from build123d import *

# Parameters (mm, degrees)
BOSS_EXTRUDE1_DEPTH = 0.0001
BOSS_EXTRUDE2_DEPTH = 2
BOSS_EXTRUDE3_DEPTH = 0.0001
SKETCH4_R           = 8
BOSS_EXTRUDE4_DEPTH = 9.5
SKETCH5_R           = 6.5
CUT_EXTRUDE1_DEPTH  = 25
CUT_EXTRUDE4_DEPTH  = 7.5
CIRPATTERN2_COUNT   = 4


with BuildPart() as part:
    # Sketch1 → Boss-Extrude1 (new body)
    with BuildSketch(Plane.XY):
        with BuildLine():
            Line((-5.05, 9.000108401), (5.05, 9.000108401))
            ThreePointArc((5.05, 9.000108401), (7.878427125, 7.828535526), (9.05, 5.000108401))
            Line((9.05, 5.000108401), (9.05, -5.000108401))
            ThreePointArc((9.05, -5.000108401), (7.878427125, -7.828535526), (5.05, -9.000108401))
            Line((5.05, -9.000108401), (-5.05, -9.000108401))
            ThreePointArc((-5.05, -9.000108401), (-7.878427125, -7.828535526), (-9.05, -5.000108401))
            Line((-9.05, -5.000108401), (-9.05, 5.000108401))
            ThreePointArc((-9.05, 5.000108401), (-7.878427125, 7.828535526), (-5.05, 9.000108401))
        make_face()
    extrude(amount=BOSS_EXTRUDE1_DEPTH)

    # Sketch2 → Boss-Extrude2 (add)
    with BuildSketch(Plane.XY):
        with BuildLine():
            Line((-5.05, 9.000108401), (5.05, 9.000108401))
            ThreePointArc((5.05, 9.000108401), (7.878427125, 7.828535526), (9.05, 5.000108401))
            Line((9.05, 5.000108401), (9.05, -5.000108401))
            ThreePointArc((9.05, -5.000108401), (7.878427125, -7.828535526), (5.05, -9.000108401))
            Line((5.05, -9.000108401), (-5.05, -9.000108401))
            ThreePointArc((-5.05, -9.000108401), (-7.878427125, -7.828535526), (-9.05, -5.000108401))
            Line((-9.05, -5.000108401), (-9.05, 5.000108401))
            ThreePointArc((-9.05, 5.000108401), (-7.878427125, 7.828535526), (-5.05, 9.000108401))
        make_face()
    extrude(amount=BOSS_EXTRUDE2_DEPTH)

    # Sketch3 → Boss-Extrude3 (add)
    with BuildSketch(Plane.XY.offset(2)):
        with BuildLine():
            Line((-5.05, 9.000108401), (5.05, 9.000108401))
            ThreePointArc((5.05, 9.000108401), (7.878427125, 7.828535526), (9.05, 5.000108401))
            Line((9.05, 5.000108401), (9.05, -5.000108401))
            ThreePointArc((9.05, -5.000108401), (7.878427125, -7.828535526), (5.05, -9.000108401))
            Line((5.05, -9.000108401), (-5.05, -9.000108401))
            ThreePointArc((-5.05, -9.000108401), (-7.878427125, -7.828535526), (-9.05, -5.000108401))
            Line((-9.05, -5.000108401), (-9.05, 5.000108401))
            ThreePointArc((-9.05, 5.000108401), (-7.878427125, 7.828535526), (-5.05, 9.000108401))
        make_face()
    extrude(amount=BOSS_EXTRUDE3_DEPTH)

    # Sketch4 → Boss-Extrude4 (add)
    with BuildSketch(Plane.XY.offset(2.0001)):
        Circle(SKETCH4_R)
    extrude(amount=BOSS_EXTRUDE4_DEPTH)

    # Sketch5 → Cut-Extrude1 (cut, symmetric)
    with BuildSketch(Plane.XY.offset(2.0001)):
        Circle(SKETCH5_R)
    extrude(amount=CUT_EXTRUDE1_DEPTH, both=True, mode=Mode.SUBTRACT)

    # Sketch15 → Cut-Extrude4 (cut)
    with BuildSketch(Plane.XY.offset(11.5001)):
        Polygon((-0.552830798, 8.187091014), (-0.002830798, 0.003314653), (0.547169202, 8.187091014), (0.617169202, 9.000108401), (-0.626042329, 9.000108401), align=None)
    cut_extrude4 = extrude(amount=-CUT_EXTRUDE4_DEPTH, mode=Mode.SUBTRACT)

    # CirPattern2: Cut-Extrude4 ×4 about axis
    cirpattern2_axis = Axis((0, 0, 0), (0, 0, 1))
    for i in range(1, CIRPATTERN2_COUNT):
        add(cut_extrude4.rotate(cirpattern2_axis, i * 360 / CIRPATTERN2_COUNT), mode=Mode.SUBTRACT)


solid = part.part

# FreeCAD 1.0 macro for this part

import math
import FreeCAD as App
import Part
import Sketcher

V = App.Vector


def add_polygon(sketch, points):
    """Adds a closed chain of lines whose ends are joined by coincident constraints."""
    first, n = sketch.GeometryCount, len(points)
    for a, b in zip(points, points[1:] + points[:1]):
        sketch.addGeometry(Part.LineSegment(App.Vector(*a, 0), App.Vector(*b, 0)), False)
    for i in range(n):
        sketch.addConstraint(Sketcher.Constraint("Coincident", first + i, 2, first + (i + 1) % n, 1))

doc = App.newDocument("Part")
body = doc.addObject("PartDesign::Body", "Body")

# Sketch on XY plane
sketch1 = body.newObject("Sketcher::SketchObject", "Sketch")
sketch1.AttachmentSupport = (doc.getObject("XY_Plane"), [""])
sketch1.MapMode = "FlatFace"
sketch1.addGeometry(Part.LineSegment(V(5, 9, 0), V(-5, 9, 0)), False)
sketch1.addGeometry(Part.ArcOfCircle(Part.Circle(V(-5.1, 5, 0), V(0, 0, 1), 4), math.radians(90), math.radians(180)), False)
sketch1.addGeometry(Part.LineSegment(V(-9.1, 5, 0), V(-9.1, -5, 0)), False)
sketch1.addGeometry(Part.ArcOfCircle(Part.Circle(V(-5.1, -5, 0), V(0, 0, 1), 4), math.radians(180), math.radians(270)), False)
sketch1.addGeometry(Part.LineSegment(V(-5, -9, 0), V(5, -9, 0)), False)
sketch1.addGeometry(Part.ArcOfCircle(Part.Circle(V(5.1, -5, 0), V(0, 0, 1), 4), math.radians(-90), math.radians(0)), False)
sketch1.addGeometry(Part.LineSegment(V(9.1, -5, 0), V(9.1, 5, 0)), False)
sketch1.addGeometry(Part.ArcOfCircle(Part.Circle(V(5.1, 5, 0), V(0, 0, 1), 4), math.radians(0), math.radians(90)), False)
sketch1.addConstraint(Sketcher.Constraint("Tangent", 0, 2, 1, 1))
sketch1.addConstraint(Sketcher.Constraint("Tangent", 1, 2, 2, 1))
sketch1.addConstraint(Sketcher.Constraint("Tangent", 2, 2, 3, 1))
sketch1.addConstraint(Sketcher.Constraint("Tangent", 3, 2, 4, 1))
sketch1.addConstraint(Sketcher.Constraint("Tangent", 4, 2, 5, 1))
sketch1.addConstraint(Sketcher.Constraint("Tangent", 5, 2, 6, 1))
sketch1.addConstraint(Sketcher.Constraint("Tangent", 6, 2, 7, 1))
sketch1.addConstraint(Sketcher.Constraint("Tangent", 7, 2, 0, 1))
sketch1.addConstraint(Sketcher.Constraint("Horizontal", 0))
sketch1.addConstraint(Sketcher.Constraint("Vertical", 2))
sketch1.addConstraint(Sketcher.Constraint("Horizontal", 4))
sketch1.addConstraint(Sketcher.Constraint("Vertical", 6))
sketch1.addConstraint(Sketcher.Constraint("Equal", 1, 3))
sketch1.addConstraint(Sketcher.Constraint("Equal", 3, 5))
sketch1.addConstraint(Sketcher.Constraint("Equal", 5, 7))
sketch1.addConstraint(Sketcher.Constraint("Symmetric", 1, 3, 5, 3, -1, 1))
sketch1.addConstraint(Sketcher.Constraint("Radius", 1, 4.0))
sketch1.addConstraint(Sketcher.Constraint("DistanceX", 0, 2, 0, 1, 10.1))
sketch1.addConstraint(Sketcher.Constraint("DistanceY", 2, 2, 2, 1, 10.000217))
pad1 = body.newObject("PartDesign::Pad", "Pad")
pad1.Profile = sketch1
pad1.Length = 0.0001

# Sketch on XY plane
sketch2 = body.newObject("Sketcher::SketchObject", "Sketch001")
sketch2.AttachmentSupport = (doc.getObject("XY_Plane"), [""])
sketch2.MapMode = "FlatFace"
sketch2.addGeometry(Part.LineSegment(V(5, 9, 0), V(-5, 9, 0)), False)
sketch2.addGeometry(Part.ArcOfCircle(Part.Circle(V(-5.1, 5, 0), V(0, 0, 1), 4), math.radians(90), math.radians(180)), False)
sketch2.addGeometry(Part.LineSegment(V(-9.1, 5, 0), V(-9.1, -5, 0)), False)
sketch2.addGeometry(Part.ArcOfCircle(Part.Circle(V(-5.1, -5, 0), V(0, 0, 1), 4), math.radians(180), math.radians(270)), False)
sketch2.addGeometry(Part.LineSegment(V(-5, -9, 0), V(5, -9, 0)), False)
sketch2.addGeometry(Part.ArcOfCircle(Part.Circle(V(5.1, -5, 0), V(0, 0, 1), 4), math.radians(-90), math.radians(0)), False)
sketch2.addGeometry(Part.LineSegment(V(9.1, -5, 0), V(9.1, 5, 0)), False)
sketch2.addGeometry(Part.ArcOfCircle(Part.Circle(V(5.1, 5, 0), V(0, 0, 1), 4), math.radians(0), math.radians(90)), False)
sketch2.addConstraint(Sketcher.Constraint("Tangent", 0, 2, 1, 1))
sketch2.addConstraint(Sketcher.Constraint("Tangent", 1, 2, 2, 1))
sketch2.addConstraint(Sketcher.Constraint("Tangent", 2, 2, 3, 1))
sketch2.addConstraint(Sketcher.Constraint("Tangent", 3, 2, 4, 1))
sketch2.addConstraint(Sketcher.Constraint("Tangent", 4, 2, 5, 1))
sketch2.addConstraint(Sketcher.Constraint("Tangent", 5, 2, 6, 1))
sketch2.addConstraint(Sketcher.Constraint("Tangent", 6, 2, 7, 1))
sketch2.addConstraint(Sketcher.Constraint("Tangent", 7, 2, 0, 1))
sketch2.addConstraint(Sketcher.Constraint("Horizontal", 0))
sketch2.addConstraint(Sketcher.Constraint("Vertical", 2))
sketch2.addConstraint(Sketcher.Constraint("Horizontal", 4))
sketch2.addConstraint(Sketcher.Constraint("Vertical", 6))
sketch2.addConstraint(Sketcher.Constraint("Equal", 1, 3))
sketch2.addConstraint(Sketcher.Constraint("Equal", 3, 5))
sketch2.addConstraint(Sketcher.Constraint("Equal", 5, 7))
sketch2.addConstraint(Sketcher.Constraint("Symmetric", 1, 3, 5, 3, -1, 1))
sketch2.addConstraint(Sketcher.Constraint("Radius", 1, 4.0))
sketch2.addConstraint(Sketcher.Constraint("DistanceX", 0, 2, 0, 1, 10.1))
sketch2.addConstraint(Sketcher.Constraint("DistanceY", 2, 2, 2, 1, 10.000217))
pad2 = body.newObject("PartDesign::Pad", "Pad001")
pad2.Profile = sketch2
pad2.Length = 2

# Sketch on XY plane
sketch3 = body.newObject("Sketcher::SketchObject", "Sketch002")
sketch3.AttachmentSupport = (doc.getObject("XY_Plane"), [""])
sketch3.MapMode = "FlatFace"
sketch3.AttachmentOffset = App.Placement(V(0, 0, 2), App.Rotation())
sketch3.addGeometry(Part.LineSegment(V(5, 9, 0), V(-5, 9, 0)), False)
sketch3.addGeometry(Part.ArcOfCircle(Part.Circle(V(-5.1, 5, 0), V(0, 0, 1), 4), math.radians(90), math.radians(180)), False)
sketch3.addGeometry(Part.LineSegment(V(-9.1, 5, 0), V(-9.1, -5, 0)), False)
sketch3.addGeometry(Part.ArcOfCircle(Part.Circle(V(-5.1, -5, 0), V(0, 0, 1), 4), math.radians(180), math.radians(270)), False)
sketch3.addGeometry(Part.LineSegment(V(-5, -9, 0), V(5, -9, 0)), False)
sketch3.addGeometry(Part.ArcOfCircle(Part.Circle(V(5.1, -5, 0), V(0, 0, 1), 4), math.radians(-90), math.radians(0)), False)
sketch3.addGeometry(Part.LineSegment(V(9.1, -5, 0), V(9.1, 5, 0)), False)
sketch3.addGeometry(Part.ArcOfCircle(Part.Circle(V(5.1, 5, 0), V(0, 0, 1), 4), math.radians(0), math.radians(90)), False)
sketch3.addConstraint(Sketcher.Constraint("Tangent", 0, 2, 1, 1))
sketch3.addConstraint(Sketcher.Constraint("Tangent", 1, 2, 2, 1))
sketch3.addConstraint(Sketcher.Constraint("Tangent", 2, 2, 3, 1))
sketch3.addConstraint(Sketcher.Constraint("Tangent", 3, 2, 4, 1))
sketch3.addConstraint(Sketcher.Constraint("Tangent", 4, 2, 5, 1))
sketch3.addConstraint(Sketcher.Constraint("Tangent", 5, 2, 6, 1))
sketch3.addConstraint(Sketcher.Constraint("Tangent", 6, 2, 7, 1))
sketch3.addConstraint(Sketcher.Constraint("Tangent", 7, 2, 0, 1))
sketch3.addConstraint(Sketcher.Constraint("Horizontal", 0))
sketch3.addConstraint(Sketcher.Constraint("Vertical", 2))
sketch3.addConstraint(Sketcher.Constraint("Horizontal", 4))
sketch3.addConstraint(Sketcher.Constraint("Vertical", 6))
sketch3.addConstraint(Sketcher.Constraint("Equal", 1, 3))
sketch3.addConstraint(Sketcher.Constraint("Equal", 3, 5))
sketch3.addConstraint(Sketcher.Constraint("Equal", 5, 7))
sketch3.addConstraint(Sketcher.Constraint("Symmetric", 1, 3, 5, 3, -1, 1))
sketch3.addConstraint(Sketcher.Constraint("Radius", 1, 4.0))
sketch3.addConstraint(Sketcher.Constraint("DistanceX", 0, 2, 0, 1, 10.1))
sketch3.addConstraint(Sketcher.Constraint("DistanceY", 2, 2, 2, 1, 10.000217))
pad3 = body.newObject("PartDesign::Pad", "Pad002")
pad3.Profile = sketch3
pad3.Length = 0.0001

# Sketch on XY plane
sketch4 = body.newObject("Sketcher::SketchObject", "Sketch003")
sketch4.AttachmentSupport = (doc.getObject("XY_Plane"), [""])
sketch4.MapMode = "FlatFace"
sketch4.AttachmentOffset = App.Placement(V(0, 0, 2.0001), App.Rotation())
sketch4.addGeometry(Part.Circle(V(0, 0, 0), V(0, 0, 1), 8), False)
sketch4.addConstraint(Sketcher.Constraint("Coincident", 0, 3, -1, 1))
sketch4.addConstraint(Sketcher.Constraint("Diameter", 0, 16.0))
pad4 = body.newObject("PartDesign::Pad", "Pad003")
pad4.Profile = sketch4
pad4.Length = 9.5

# Sketch on XY plane
sketch5 = body.newObject("Sketcher::SketchObject", "Sketch004")
sketch5.AttachmentSupport = (doc.getObject("XY_Plane"), [""])
sketch5.MapMode = "FlatFace"
sketch5.AttachmentOffset = App.Placement(V(0, 0, 2.0001), App.Rotation())
sketch5.addGeometry(Part.Circle(V(0, 0, 0), V(0, 0, 1), 6), False)
sketch5.addConstraint(Sketcher.Constraint("Coincident", 0, 3, -1, 1))
sketch5.addConstraint(Sketcher.Constraint("Diameter", 0, 13.0))
pocket1 = body.newObject("PartDesign::Pocket", "Pocket")
pocket1.Profile = sketch5
pocket1.Length = 50
pocket1.Midplane = True

# Sketch on XY plane
sketch6 = body.newObject("Sketcher::SketchObject", "Sketch005")
sketch6.AttachmentSupport = (doc.getObject("XY_Plane"), [""])
sketch6.MapMode = "FlatFace"
sketch6.AttachmentOffset = App.Placement(V(0, 0, 11.5001), App.Rotation())
add_polygon(sketch6, [(-0.6, 8.2), (0, 0), (0.5, 8.2), (0.6, 9), (-0.6, 9)])  # lines 0-4
sketch6.addConstraint(Sketcher.Constraint("Horizontal", 3))
sketch6.addConstraint(Sketcher.Constraint("Horizontal", 1, 2, 4, 2))
sketch6.addConstraint(Sketcher.Constraint("Equal", 0, 1))
sketch6.addConstraint(Sketcher.Constraint("DistanceX", 4, 2, 1, 2, 1.1))
sketch6.addConstraint(Sketcher.Constraint("DistanceX", 1, 2, 2, 2, 0.07))
sketch6.addConstraint(Sketcher.Constraint("DistanceX", 3, 2, 3, 1, 1.243212))
sketch6.addConstraint(Sketcher.Constraint("DistanceX", 0, 2, -1, 1, 0.002831))
sketch6.addConstraint(Sketcher.Constraint("DistanceY", -1, 1, 1, 2, 8.187091))
sketch6.addConstraint(Sketcher.Constraint("DistanceY", -1, 1, 2, 2, 9.000108))
sketch6.addConstraint(Sketcher.Constraint("Distance", 0, 8.202237))
pocket2 = body.newObject("PartDesign::Pocket", "Pocket001")
pocket2.Profile = sketch6
pocket2.Length = 7.5
doc.recompute()

polarpattern = body.newObject("PartDesign::PolarPattern", "PolarPattern")
polarpattern.Originals = [pocket2]
polarpattern.Axis = (doc.getObject("Z_Axis"), [""])
polarpattern.Angle = 360
polarpattern.Occurrences = 4
body.Tip = polarpattern

doc.recompute()
